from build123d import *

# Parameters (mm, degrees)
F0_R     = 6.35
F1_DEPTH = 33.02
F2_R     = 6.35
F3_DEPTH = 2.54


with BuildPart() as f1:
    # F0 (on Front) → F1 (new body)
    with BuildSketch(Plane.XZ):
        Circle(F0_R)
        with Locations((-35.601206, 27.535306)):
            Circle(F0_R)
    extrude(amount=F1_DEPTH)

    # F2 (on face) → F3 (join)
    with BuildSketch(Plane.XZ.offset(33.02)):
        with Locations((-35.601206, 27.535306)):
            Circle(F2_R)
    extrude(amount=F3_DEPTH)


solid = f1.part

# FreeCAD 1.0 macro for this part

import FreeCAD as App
import Part
import Sketcher
from FreeCAD import Vector
Q = App.Units.Quantity

doc = App.newDocument("Part")
params = doc.addObject("Spreadsheet::Sheet", "Params")
for row, (alias, value) in enumerate([
    ("sketch1_diameter", "0.5 in"),
    ("pad1_length", "1.3 in"),
    ("sketch2_diameter", "0.5 in"),
    ("pad2_length", "0.1 in"),
], start=1):
    params.set(f"A{row}", alias)
    params.set(f"B{row}", "=" + value)
    params.setAlias(f"B{row}", alias)

body = doc.addObject("PartDesign::Body", "Body")
body.AllowCompound = True

# Sketch on XZ plane
sketch1 = body.newObject("Sketcher::SketchObject", "Sketch")
sketch1.AttachmentSupport = (doc.getObject("XZ_Plane"), [""])
sketch1.MapMode = "FlatFace"
sketch1.addGeometry(Part.Circle(Vector(0, 0, 0), Vector(0, 0, 1), 6.35), False)
sketch1.addGeometry(Part.Circle(Vector(-35.601206, 27.535306, 0), Vector(0, 0, 1), 6.35), False)
sketch1.addConstraint(Sketcher.Constraint("Coincident", 0, 3, -1, 1))
sketch1.addConstraint(Sketcher.Constraint("Equal", 0, 1))
sketch1.addConstraint(Sketcher.Constraint("Diameter", 0, Q("0.5 in")))
sketch1.addConstraint(Sketcher.Constraint("DistanceX", 1, 3, -1, 1, 35.601206))
sketch1.addConstraint(Sketcher.Constraint("DistanceY", -1, 1, 1, 3, 27.535306))
sketch1.setExpression("Constraints[2]", "Params.sketch1_diameter")
pad1 = body.newObject("PartDesign::Pad", "Pad")
pad1.Profile = sketch1
pad1.setExpression("Length", "Params.pad1_length")

# Sketch on XZ plane
sketch2 = body.newObject("Sketcher::SketchObject", "Sketch001")
sketch2.AttachmentSupport = (doc.getObject("XZ_Plane"), [""])
sketch2.MapMode = "FlatFace"
sketch2.AttachmentOffset = App.Placement(Vector(0, 0, 1.3 * 25.4), App.Rotation())
sketch2.addGeometry(Part.Circle(Vector(-35.601206, 27.535306, 0), Vector(0, 0, 1), 6.35), False)
sketch2.addConstraint(Sketcher.Constraint("Diameter", 0, Q("0.5 in")))
sketch2.addConstraint(Sketcher.Constraint("DistanceX", 0, 3, -1, 1, 35.601206))
sketch2.addConstraint(Sketcher.Constraint("DistanceY", -1, 1, 0, 3, 27.535306))
sketch2.setExpression("Constraints[0]", "Params.sketch2_diameter")
pad2 = body.newObject("PartDesign::Pad", "Pad001")
pad2.Profile = sketch2
pad2.setExpression("Length", "Params.pad2_length")

doc.recompute()
